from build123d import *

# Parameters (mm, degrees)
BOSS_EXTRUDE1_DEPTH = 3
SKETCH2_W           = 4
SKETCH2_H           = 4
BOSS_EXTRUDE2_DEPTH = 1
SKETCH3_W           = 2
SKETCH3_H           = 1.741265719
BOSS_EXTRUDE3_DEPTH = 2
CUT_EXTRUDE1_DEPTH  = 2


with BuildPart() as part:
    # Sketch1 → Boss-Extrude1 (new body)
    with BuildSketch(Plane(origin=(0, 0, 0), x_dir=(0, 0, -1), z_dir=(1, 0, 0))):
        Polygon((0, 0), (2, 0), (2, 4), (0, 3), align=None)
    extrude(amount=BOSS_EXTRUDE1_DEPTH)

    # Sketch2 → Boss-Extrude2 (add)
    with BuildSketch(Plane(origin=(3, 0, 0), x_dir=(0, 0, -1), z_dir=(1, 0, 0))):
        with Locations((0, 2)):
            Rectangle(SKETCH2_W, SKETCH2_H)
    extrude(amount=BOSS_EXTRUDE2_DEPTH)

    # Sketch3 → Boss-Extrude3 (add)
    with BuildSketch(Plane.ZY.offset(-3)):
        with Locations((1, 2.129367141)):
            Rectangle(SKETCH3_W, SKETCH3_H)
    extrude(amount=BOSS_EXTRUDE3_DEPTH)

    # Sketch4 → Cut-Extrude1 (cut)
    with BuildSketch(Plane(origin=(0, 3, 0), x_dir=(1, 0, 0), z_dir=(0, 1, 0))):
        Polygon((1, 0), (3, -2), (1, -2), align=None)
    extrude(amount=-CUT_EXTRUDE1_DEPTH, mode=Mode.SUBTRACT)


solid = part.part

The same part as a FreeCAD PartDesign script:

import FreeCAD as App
import Part
import Sketcher
Q = App.Units.Quantity

doc = App.newDocument("Part")
body = doc.addObject("PartDesign::Body", "Body")

sketch1 = body.newObject("Sketcher::SketchObject", "Sketch")
sketch1.AttachmentSupport = (doc.getObject("YZ_Plane"), [""])
sketch1.MapMode = "FlatFace"
sketch1.addGeometry([
    Part.LineSegment(App.Vector(0, 0, 0), App.Vector(0, -2, 0)),
    Part.LineSegment(App.Vector(0, -2, 0), App.Vector(4, -2, 0)),
    Part.LineSegment(App.Vector(4, -2, 0), App.Vector(3, 0, 0)),
    Part.LineSegment(App.Vector(3, 0, 0), App.Vector(0, 0, 0)),
], False)
sketch1.addConstraint([
    Sketcher.Constraint("Coincident", 0, 2, 1, 1),
    Sketcher.Constraint("Coincident", 1, 2, 2, 1),
    Sketcher.Constraint("Coincident", 2, 2, 3, 1),
    Sketcher.Constraint("Coincident", 3, 2, 0, 1),
    Sketcher.Constraint("Vertical", 0),
    Sketcher.Constraint("Horizontal", 1),
    Sketcher.Constraint("Horizontal", 3),
    Sketcher.Constraint("Coincident", 3, 2, -1, 1),
    Sketcher.Constraint("DistanceX", 1, 1, 1, 2, Q("4 mm")),
    Sketcher.Constraint("DistanceX", 3, 2, 3, 1, Q("3 mm")),
    Sketcher.Constraint("DistanceY", 0, 2, 0, 1, Q("2 mm")),
])
pad1 = body.newObject("PartDesign::Pad", "Pad")
pad1.Profile = sketch1
pad1.Length = 3

sketch2 = body.newObject("Sketcher::SketchObject", "Sketch001")
sketch2.AttachmentSupport = (doc.getObject("YZ_Plane"), [""])
sketch2.MapMode = "FlatFace"
sketch2.AttachmentOffset = App.Placement(App.Vector(0, 0, 3), App.Rotation())
sketch2.addGeometry([
    Part.LineSegment(App.Vector(4, 2, 0), App.Vector(0, 2, 0)),
    Part.LineSegment(App.Vector(0, 2, 0), App.Vector(0, -2, 0)),
    Part.LineSegment(App.Vector(0, -2, 0), App.Vector(4, -2, 0)),
    Part.LineSegment(App.Vector(4, -2, 0), App.Vector(4, 2, 0)),
], False)
sketch2.addConstraint([
    Sketcher.Constraint("Coincident", 0, 2, 1, 1),
    Sketcher.Constraint("Coincident", 1, 2, 2, 1),
    Sketcher.Constraint("Coincident", 2, 2, 3, 1),
    Sketcher.Constraint("Coincident", 3, 2, 0, 1),
    Sketcher.Constraint("Horizontal", 0),
    Sketcher.Constraint("Vertical", 1),
    Sketcher.Constraint("Horizontal", 2),
    Sketcher.Constraint("Vertical", 3),
    Sketcher.Constraint("Symmetric", 0, 2, 1, 2, -1, 1),
    Sketcher.Constraint("Equal", 2, 1),
    Sketcher.Constraint("DistanceX", 0, 2, 0, 1, Q("4 mm")),
])
pad2 = body.newObject("PartDesign::Pad", "Pad001")
pad2.Profile = sketch2
pad2.Length = 1

sketch3 = body.newObject("Sketcher::SketchObject", "Sketch002")
sketch3.AttachmentSupport = (doc.getObject("YZ_Plane"), [""])
sketch3.MapMode = "FlatFace"
sketch3.AttachmentOffset = App.Placement(App.Vector(0, 0, 3), App.Rotation())
sketch3.addGeometry([
    Part.LineSegment(App.Vector(3, 0, 0), App.Vector(1.3, 0, 0)),
    Part.LineSegment(App.Vector(1.3, 0, 0), App.Vector(1.3, 2, 0)),
    Part.LineSegment(App.Vector(1.3, 2, 0), App.Vector(3, 2, 0)),
    Part.LineSegment(App.Vector(3, 2, 0), App.Vector(3, 0, 0)),
], False)
sketch3.addConstraint([
    Sketcher.Constraint("Coincident", 0, 2, 1, 1),
    Sketcher.Constraint("Coincident", 1, 2, 2, 1),
    Sketcher.Constraint("Coincident", 2, 2, 3, 1),
    Sketcher.Constraint("Coincident", 3, 2, 0, 1),
    Sketcher.Constraint("Horizontal", 0),
    Sketcher.Constraint("Vertical", 1),
    Sketcher.Constraint("Horizontal", 2),
    Sketcher.Constraint("Vertical", 3),
    Sketcher.Constraint("PointOnObject", 0, 2, -1),
    Sketcher.Constraint("DistanceY", 1, 1, 1, 2, Q("2 mm")),
    Sketcher.Constraint("DistanceX", -1, 1, 2, 2, Q("3 mm")),
    Sketcher.Constraint("DistanceX", 0, 2, 0, 1, Q("1.741266 mm")),
])
pad3 = body.newObject("PartDesign::Pad", "Pad002")
pad3.Profile = sketch3
pad3.Length = 2
pad3.Reversed = True

sketch4 = body.newObject("Sketcher::SketchObject", "Sketch003")
sketch4.AttachmentSupport = (doc.getObject("XZ_Plane"), [""])
sketch4.MapMode = "FlatFace"
sketch4.AttachmentOffset = App.Placement(App.Vector(0, 0, -3), App.Rotation())
sketch4.addGeometry([
    Part.LineSegment(App.Vector(3, 2, 0), App.Vector(1, 0, 0)),
    Part.LineSegment(App.Vector(1, 0, 0), App.Vector(1, 2, 0)),
    Part.LineSegment(App.Vector(1, 2, 0), App.Vector(3, 2, 0)),
], False)
sketch4.addConstraint([
    Sketcher.Constraint("Coincident", 0, 2, 1, 1),
    Sketcher.Constraint("Coincident", 1, 2, 2, 1),
    Sketcher.Constraint("Coincident", 2, 2, 0, 1),
    Sketcher.Constraint("Vertical", 1),
    Sketcher.Constraint("Horizontal", 2),
    Sketcher.Constraint("PointOnObject", 0, 2, -1),
    Sketcher.Constraint("Equal", 2, 1),
    Sketcher.Constraint("DistanceX", 2, 1, 2, 2, Q("2 mm")),
    Sketcher.Constraint("DistanceX", -1, 1, 0, 2, Q("1 mm")),
])
pocket1 = body.newObject("PartDesign::Pocket", "Pocket")
pocket1.Profile = sketch4
pocket1.Length = 2
pocket1.Reversed = True

doc.recompute()
